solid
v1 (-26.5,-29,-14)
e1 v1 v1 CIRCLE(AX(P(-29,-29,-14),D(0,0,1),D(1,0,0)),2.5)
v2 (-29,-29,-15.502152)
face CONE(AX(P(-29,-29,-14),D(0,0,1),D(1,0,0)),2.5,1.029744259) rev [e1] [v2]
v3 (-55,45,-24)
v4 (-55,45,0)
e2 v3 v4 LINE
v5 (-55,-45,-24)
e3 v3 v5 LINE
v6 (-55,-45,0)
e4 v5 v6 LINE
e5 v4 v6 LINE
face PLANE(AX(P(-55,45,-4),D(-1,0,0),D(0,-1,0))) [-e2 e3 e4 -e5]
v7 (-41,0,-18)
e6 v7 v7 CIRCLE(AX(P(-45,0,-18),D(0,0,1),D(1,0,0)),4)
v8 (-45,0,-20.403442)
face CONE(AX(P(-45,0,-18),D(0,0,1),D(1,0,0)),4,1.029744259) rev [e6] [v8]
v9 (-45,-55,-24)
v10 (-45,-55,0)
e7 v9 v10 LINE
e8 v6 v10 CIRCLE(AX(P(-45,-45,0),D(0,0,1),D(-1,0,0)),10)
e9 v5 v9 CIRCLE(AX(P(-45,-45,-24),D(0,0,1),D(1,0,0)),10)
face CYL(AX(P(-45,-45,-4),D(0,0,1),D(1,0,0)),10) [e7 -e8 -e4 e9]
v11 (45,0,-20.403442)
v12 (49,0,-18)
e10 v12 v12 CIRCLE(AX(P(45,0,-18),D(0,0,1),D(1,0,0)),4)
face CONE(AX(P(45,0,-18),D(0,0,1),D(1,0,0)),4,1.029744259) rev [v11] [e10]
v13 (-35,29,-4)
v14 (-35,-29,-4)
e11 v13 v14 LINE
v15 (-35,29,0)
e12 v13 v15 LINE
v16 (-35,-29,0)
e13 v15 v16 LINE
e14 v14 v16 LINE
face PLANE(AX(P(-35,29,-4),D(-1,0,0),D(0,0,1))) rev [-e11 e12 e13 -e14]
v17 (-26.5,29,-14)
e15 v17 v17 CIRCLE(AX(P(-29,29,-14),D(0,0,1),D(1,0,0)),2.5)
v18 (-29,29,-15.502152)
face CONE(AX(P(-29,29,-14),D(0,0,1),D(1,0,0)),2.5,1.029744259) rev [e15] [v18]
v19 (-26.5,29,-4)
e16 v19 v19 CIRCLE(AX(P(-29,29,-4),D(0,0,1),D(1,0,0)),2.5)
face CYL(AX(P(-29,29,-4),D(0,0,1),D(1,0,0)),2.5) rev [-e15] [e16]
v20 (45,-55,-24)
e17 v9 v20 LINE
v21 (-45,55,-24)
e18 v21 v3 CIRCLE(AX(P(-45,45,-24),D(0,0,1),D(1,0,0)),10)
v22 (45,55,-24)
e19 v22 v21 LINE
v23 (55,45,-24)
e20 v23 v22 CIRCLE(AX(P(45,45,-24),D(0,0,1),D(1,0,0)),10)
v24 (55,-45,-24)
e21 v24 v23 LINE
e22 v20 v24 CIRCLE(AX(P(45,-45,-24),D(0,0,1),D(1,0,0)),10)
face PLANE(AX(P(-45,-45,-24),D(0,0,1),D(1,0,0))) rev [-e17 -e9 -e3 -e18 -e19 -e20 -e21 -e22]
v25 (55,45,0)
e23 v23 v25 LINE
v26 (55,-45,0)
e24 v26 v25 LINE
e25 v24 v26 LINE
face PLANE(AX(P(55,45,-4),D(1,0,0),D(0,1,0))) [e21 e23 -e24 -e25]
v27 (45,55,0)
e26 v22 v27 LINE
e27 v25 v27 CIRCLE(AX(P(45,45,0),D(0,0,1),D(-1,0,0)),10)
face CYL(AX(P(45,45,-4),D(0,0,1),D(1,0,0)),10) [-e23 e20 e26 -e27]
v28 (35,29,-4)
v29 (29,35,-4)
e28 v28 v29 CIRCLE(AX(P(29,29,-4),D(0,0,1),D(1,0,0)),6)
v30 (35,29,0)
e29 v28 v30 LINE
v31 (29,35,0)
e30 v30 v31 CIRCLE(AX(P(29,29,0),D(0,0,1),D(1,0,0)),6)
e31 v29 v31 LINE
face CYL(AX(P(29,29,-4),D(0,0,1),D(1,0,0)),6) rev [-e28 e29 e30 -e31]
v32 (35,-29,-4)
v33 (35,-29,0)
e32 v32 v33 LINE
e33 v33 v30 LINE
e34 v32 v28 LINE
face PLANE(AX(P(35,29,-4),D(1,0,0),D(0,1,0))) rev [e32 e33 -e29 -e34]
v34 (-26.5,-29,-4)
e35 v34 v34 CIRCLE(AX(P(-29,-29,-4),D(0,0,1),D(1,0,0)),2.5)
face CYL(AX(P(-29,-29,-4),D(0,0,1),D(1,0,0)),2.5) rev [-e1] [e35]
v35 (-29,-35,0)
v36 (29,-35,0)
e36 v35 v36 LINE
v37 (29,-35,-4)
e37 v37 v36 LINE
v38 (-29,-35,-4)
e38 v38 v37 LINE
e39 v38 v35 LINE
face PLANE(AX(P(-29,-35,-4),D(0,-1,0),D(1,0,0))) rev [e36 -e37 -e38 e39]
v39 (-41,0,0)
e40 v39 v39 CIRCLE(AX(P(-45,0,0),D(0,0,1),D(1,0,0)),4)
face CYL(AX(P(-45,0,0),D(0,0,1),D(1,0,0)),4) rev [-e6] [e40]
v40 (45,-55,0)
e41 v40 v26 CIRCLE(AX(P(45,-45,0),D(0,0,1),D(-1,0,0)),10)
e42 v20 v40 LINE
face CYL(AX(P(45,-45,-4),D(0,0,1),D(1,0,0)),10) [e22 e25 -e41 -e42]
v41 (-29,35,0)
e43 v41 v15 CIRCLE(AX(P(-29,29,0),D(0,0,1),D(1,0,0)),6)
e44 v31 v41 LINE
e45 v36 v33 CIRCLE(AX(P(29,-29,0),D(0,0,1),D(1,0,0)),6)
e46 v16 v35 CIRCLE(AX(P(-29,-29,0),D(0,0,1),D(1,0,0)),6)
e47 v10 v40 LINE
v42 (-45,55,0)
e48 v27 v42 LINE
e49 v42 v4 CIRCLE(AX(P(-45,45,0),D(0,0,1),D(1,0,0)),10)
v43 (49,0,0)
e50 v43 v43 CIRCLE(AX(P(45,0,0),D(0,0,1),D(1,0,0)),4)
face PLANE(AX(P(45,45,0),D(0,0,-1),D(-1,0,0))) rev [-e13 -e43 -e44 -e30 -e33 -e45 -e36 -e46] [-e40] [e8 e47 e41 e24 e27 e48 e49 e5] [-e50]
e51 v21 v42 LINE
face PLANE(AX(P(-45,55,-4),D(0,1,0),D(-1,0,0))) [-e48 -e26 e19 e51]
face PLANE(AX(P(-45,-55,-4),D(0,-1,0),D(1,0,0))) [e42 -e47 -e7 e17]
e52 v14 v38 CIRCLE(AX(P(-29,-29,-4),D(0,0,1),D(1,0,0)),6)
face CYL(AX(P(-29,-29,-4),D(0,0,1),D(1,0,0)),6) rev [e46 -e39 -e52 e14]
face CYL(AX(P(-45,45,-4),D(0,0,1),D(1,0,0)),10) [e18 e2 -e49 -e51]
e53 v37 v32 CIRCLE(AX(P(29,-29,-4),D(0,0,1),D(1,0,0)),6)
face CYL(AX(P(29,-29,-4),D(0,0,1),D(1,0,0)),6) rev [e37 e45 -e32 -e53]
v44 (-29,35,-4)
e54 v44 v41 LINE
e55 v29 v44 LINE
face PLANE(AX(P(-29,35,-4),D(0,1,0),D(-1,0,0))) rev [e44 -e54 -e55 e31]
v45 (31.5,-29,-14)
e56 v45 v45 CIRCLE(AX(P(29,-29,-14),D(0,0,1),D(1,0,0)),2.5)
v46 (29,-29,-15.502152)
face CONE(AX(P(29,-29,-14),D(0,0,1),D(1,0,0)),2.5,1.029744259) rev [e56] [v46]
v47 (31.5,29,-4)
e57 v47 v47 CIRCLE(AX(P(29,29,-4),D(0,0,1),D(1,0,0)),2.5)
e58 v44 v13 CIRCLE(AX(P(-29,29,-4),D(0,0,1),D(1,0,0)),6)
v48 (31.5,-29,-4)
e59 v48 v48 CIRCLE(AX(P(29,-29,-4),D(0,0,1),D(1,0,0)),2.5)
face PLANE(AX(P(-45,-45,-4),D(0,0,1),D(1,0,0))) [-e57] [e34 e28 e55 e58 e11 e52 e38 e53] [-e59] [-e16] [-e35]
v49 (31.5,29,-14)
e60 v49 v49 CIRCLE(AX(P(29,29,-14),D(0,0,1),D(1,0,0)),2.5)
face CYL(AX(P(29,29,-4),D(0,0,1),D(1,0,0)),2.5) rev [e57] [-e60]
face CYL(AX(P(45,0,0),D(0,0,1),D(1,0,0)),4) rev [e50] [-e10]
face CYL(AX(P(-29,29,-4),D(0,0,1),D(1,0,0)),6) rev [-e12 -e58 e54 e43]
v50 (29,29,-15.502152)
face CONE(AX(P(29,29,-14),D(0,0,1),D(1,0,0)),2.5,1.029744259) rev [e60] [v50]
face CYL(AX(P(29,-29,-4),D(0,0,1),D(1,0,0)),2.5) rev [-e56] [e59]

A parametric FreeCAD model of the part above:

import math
import FreeCAD as App
import Part
import Sketcher

V = App.Vector
Q = App.Units.Quantity

doc = App.newDocument("Part")
params = doc.addObject("Spreadsheet::Sheet", "Params")
for row, (alias, value) in enumerate([
    ("sketch1_radius", "10 mm"),
    ("sketch1_radius2", "6 mm"),
    ("sketch1_width", "90 mm"),
    ("sketch1_width2", "58 mm"),
    ("pad1_length", "4 mm"),
    ("sketch2_radius", "10 mm"),
    ("sketch2_width", "90 mm"),
    ("pad2_length", "20 mm"),
    ("sketch3_diameter", "8 mm"),
    ("hole_diameter", "8 mm"),
    ("hole_depth", "18 mm"),
    ("sketch4_diameter", "5 mm"),
    ("hole2_diameter", "5 mm"),
    ("hole2_depth", "10 mm"),
], start=1):
    params.set(f"A{row}", alias)
    params.set(f"B{row}", "=" + value)
    params.setAlias(f"B{row}", alias)

body = doc.addObject("PartDesign::Body", "Body")

# Sketch on XY plane
sketch1 = body.newObject("Sketcher::SketchObject", "Sketch")
sketch1.AttachmentSupport = (doc.getObject("XY_Plane"), [""])
sketch1.MapMode = "FlatFace"
sketch1.addGeometry([
    Part.LineSegment(V(45, 55, 0), V(-45, 55, 0)),  # 0
    Part.ArcOfCircle(Part.Circle(V(-45, 45, 0), V(0, 0, 1), 10), math.radians(90), math.radians(180)),  # 1
    Part.LineSegment(V(-55, 45, 0), V(-55, -45, 0)),  # 2
    Part.ArcOfCircle(Part.Circle(V(-45, -45, 0), V(0, 0, 1), 10), math.radians(180), math.radians(270)),  # 3
    Part.LineSegment(V(-45, -55, 0), V(45, -55, 0)),  # 4
    Part.ArcOfCircle(Part.Circle(V(45, -45, 0), V(0, 0, 1), 10), math.radians(-90), math.radians(0)),  # 5
    Part.LineSegment(V(55, -45, 0), V(55, 45, 0)),  # 6
    Part.ArcOfCircle(Part.Circle(V(45, 45, 0), V(0, 0, 1), 10), math.radians(0), math.radians(90)),  # 7
    Part.LineSegment(V(-29, 35, 0), V(29, 35, 0)),  # 8
    Part.ArcOfCircle(Part.Circle(V(29, 29, 0), V(0, 0, 1), 6), math.radians(0), math.radians(90)),  # 9
    Part.LineSegment(V(35, 29, 0), V(35, -29, 0)),  # 10
    Part.ArcOfCircle(Part.Circle(V(29, -29, 0), V(0, 0, 1), 6), math.radians(-90), math.radians(0)),  # 11
    Part.LineSegment(V(29, -35, 0), V(-29, -35, 0)),  # 12
    Part.ArcOfCircle(Part.Circle(V(-29, -29, 0), V(0, 0, 1), 6), math.radians(180), math.radians(270)),  # 13
    Part.LineSegment(V(-35, -29, 0), V(-35, 29, 0)),  # 14
    Part.ArcOfCircle(Part.Circle(V(-29, 29, 0), V(0, 0, 1), 6), math.radians(90), math.radians(180)),  # 15
], False)
sketch1.addConstraint([
    Sketcher.Constraint("Tangent", 0, 2, 1, 1),
    Sketcher.Constraint("Tangent", 1, 2, 2, 1),
    Sketcher.Constraint("Tangent", 2, 2, 3, 1),
    Sketcher.Constraint("Tangent", 3, 2, 4, 1),
    Sketcher.Constraint("Tangent", 4, 2, 5, 1),
    Sketcher.Constraint("Tangent", 5, 2, 6, 1),
    Sketcher.Constraint("Tangent", 6, 2, 7, 1),
    Sketcher.Constraint("Tangent", 7, 2, 0, 1),
    Sketcher.Constraint("Tangent", 8, 2, 9, 2),
    Sketcher.Constraint("Tangent", 9, 1, 10, 1),
    Sketcher.Constraint("Tangent", 10, 2, 11, 2),
    Sketcher.Constraint("Tangent", 11, 1, 12, 1),
    Sketcher.Constraint("Tangent", 12, 2, 13, 2),
    Sketcher.Constraint("Tangent", 13, 1, 14, 1),
    Sketcher.Constraint("Tangent", 14, 2, 15, 2),
    Sketcher.Constraint("Tangent", 15, 1, 8, 1),
    Sketcher.Constraint("Horizontal", 0),
    Sketcher.Constraint("Vertical", 2),
    Sketcher.Constraint("Horizontal", 4),
    Sketcher.Constraint("Vertical", 6),
    Sketcher.Constraint("Horizontal", 8),
    Sketcher.Constraint("Vertical", 10),
    Sketcher.Constraint("Horizontal", 12),
    Sketcher.Constraint("Vertical", 14),
    Sketcher.Constraint("Equal", 1, 3),
    Sketcher.Constraint("Equal", 3, 5),
    Sketcher.Constraint("Equal", 5, 7),
    Sketcher.Constraint("Equal", 9, 11),
    Sketcher.Constraint("Equal", 11, 13),
    Sketcher.Constraint("Equal", 13, 15),
    Sketcher.Constraint("Symmetric", 1, 3, 5, 3, -1, 1),
    Sketcher.Constraint("Symmetric", 9, 3, 13, 3, -1, 1),
    Sketcher.Constraint("Equal", 4, 2),
    Sketcher.Constraint("Equal", 12, 10),
    Sketcher.Constraint("Radius", 1, Q("10 mm")),
    Sketcher.Constraint("Radius", 9, Q("6 mm")),
    Sketcher.Constraint("DistanceX", 0, 2, 0, 1, Q("90 mm")),
    Sketcher.Constraint("DistanceX", 8, 1, 8, 2, Q("58 mm")),
])
sketch1.setExpression("Constraints[34]", "Params.sketch1_radius")
sketch1.setExpression("Constraints[35]", "Params.sketch1_radius2")
sketch1.setExpression("Constraints[36]", "Params.sketch1_width")
sketch1.setExpression("Constraints[37]", "Params.sketch1_width2")
pad1 = body.newObject("PartDesign::Pad", "Pad")
pad1.Profile = sketch1
pad1.setExpression("Length", "Params.pad1_length")
pad1.Reversed = True

# Sketch on XY plane
sketch2 = body.newObject("Sketcher::SketchObject", "Sketch001")
sketch2.AttachmentSupport = (doc.getObject("XY_Plane"), [""])
sketch2.MapMode = "FlatFace"
sketch2.AttachmentOffset = App.Placement(V(0, 0, -4), App.Rotation())
sketch2.addGeometry([
    Part.LineSegment(V(-45, -55, 0), V(45, -55, 0)),  # 0
    Part.ArcOfCircle(Part.Circle(V(45, -45, 0), V(0, 0, 1), 10), math.radians(-90), math.radians(0)),  # 1
    Part.LineSegment(V(55, -45, 0), V(55, 45, 0)),  # 2
    Part.ArcOfCircle(Part.Circle(V(45, 45, 0), V(0, 0, 1), 10), math.radians(0), math.radians(90)),  # 3
    Part.LineSegment(V(45, 55, 0), V(-45, 55, 0)),  # 4
    Part.ArcOfCircle(Part.Circle(V(-45, 45, 0), V(0, 0, 1), 10), math.radians(90), math.radians(180)),  # 5
    Part.LineSegment(V(-55, 45, 0), V(-55, -45, 0)),  # 6
    Part.ArcOfCircle(Part.Circle(V(-45, -45, 0), V(0, 0, 1), 10), math.radians(180), math.radians(270)),  # 7
], False)
sketch2.addConstraint([
    Sketcher.Constraint("Tangent", 0, 2, 1, 1),
    Sketcher.Constraint("Tangent", 1, 2, 2, 1),
    Sketcher.Constraint("Tangent", 2, 2, 3, 1),
    Sketcher.Constraint("Tangent", 3, 2, 4, 1),
    Sketcher.Constraint("Tangent", 4, 2, 5, 1),
    Sketcher.Constraint("Tangent", 5, 2, 6, 1),
    Sketcher.Constraint("Tangent", 6, 2, 7, 1),
    Sketcher.Constraint("Tangent", 7, 2, 0, 1),
    Sketcher.Constraint("Horizontal", 0),
    Sketcher.Constraint("Vertical", 2),
    Sketcher.Constraint("Horizontal", 4),
    Sketcher.Constraint("Vertical", 6),
    Sketcher.Constraint("Equal", 1, 3),
    Sketcher.Constraint("Equal", 3, 5),
    Sketcher.Constraint("Equal", 5, 7),
    Sketcher.Constraint("Symmetric", 1, 3, 5, 3, -1, 1),
    Sketcher.Constraint("Equal", 4, 2),
    Sketcher.Constraint("Radius", 1, Q("10 mm")),
    Sketcher.Constraint("DistanceX", 0, 1, 0, 2, Q("90 mm")),
])
sketch2.setExpression("Constraints[17]", "Params.sketch2_radius")
sketch2.setExpression("Constraints[18]", "Params.sketch2_width")
pad2 = body.newObject("PartDesign::Pad", "Pad001")
pad2.Profile = sketch2
pad2.setExpression("Length", "Params.pad2_length")
pad2.Reversed = True

# Sketch on XY plane
sketch3 = body.newObject("Sketcher::SketchObject", "Sketch002")
sketch3.AttachmentSupport = (doc.getObject("XY_Plane"), [""])
sketch3.MapMode = "FlatFace"
sketch3.addGeometry([
    Part.Circle(V(-45, 0, 0), V(0, 0, 1), 4),
    Part.Circle(V(45, 0, 0), V(0, 0, 1), 4),
], False)
sketch3.addConstraint([
    Sketcher.Constraint("Equal", 0, 1),
    Sketcher.Constraint("Symmetric", 0, 3, 1, 3, -1, 1),
    Sketcher.Constraint("PointOnObject", 0, 3, -1),
    Sketcher.Constraint("Diameter", 0, Q("8 mm")),
    Sketcher.Constraint("DistanceX", 0, 3, -1, 1, Q("45 mm")),
])
sketch3.setExpression("Constraints[3]", "Params.sketch3_diameter")
doc.recompute()
hole = body.newObject("PartDesign::Hole", "Hole")
hole.Profile = sketch3
hole.ThreadType = "None"
hole.setExpression("Diameter", "Params.hole_diameter")
hole.DepthType = "Dimension"
hole.setExpression("Depth", "Params.hole_depth")
hole.DrillPoint = "Angled"
hole.DrillPointAngle = 118

# Sketch on XY plane
sketch4 = body.newObject("Sketcher::SketchObject", "Sketch003")
sketch4.AttachmentSupport = (doc.getObject("XY_Plane"), [""])
sketch4.MapMode = "FlatFace"
sketch4.AttachmentOffset = App.Placement(V(0, 0, -4), App.Rotation())
sketch4.addGeometry([
    Part.Circle(V(-29, 29, 0), V(0, 0, 1), 2.5),
    Part.Circle(V(29, 29, 0), V(0, 0, 1), 2.5),
    Part.Circle(V(29, -29, 0), V(0, 0, 1), 2.5),
    Part.Circle(V(-29, -29, 0), V(0, 0, 1), 2.5),
], False)
sketch4.addConstraint([
    Sketcher.Constraint("Equal", 0, 1),
    Sketcher.Constraint("Equal", 1, 2),
    Sketcher.Constraint("Equal", 2, 3),
    Sketcher.Constraint("Symmetric", 0, 3, 2, 3, -1, 1),
    Sketcher.Constraint("Symmetric", 1, 3, 3, 3, -1, 1),
    Sketcher.Constraint("Symmetric", 0, 3, 1, 3, -2),
    Sketcher.Constraint("Diameter", 0, Q("5 mm")),
    Sketcher.Constraint("DistanceX", 0, 3, -1, 1, Q("29 mm")),
    Sketcher.Constraint("DistanceY", -1, 1, 0, 3, Q("29 mm")),
])
sketch4.setExpression("Constraints[6]", "Params.sketch4_diameter")
doc.recompute()
hole2 = body.newObject("PartDesign::Hole", "Hole001")
hole2.Profile = sketch4
hole2.ThreadType = "None"
hole2.setExpression("Diameter", "Params.hole2_diameter")
hole2.DepthType = "Dimension"
hole2.setExpression("Depth", "Params.hole2_depth")
hole2.DrillPoint = "Angled"
hole2.DrillPointAngle = 118

doc.recompute()
